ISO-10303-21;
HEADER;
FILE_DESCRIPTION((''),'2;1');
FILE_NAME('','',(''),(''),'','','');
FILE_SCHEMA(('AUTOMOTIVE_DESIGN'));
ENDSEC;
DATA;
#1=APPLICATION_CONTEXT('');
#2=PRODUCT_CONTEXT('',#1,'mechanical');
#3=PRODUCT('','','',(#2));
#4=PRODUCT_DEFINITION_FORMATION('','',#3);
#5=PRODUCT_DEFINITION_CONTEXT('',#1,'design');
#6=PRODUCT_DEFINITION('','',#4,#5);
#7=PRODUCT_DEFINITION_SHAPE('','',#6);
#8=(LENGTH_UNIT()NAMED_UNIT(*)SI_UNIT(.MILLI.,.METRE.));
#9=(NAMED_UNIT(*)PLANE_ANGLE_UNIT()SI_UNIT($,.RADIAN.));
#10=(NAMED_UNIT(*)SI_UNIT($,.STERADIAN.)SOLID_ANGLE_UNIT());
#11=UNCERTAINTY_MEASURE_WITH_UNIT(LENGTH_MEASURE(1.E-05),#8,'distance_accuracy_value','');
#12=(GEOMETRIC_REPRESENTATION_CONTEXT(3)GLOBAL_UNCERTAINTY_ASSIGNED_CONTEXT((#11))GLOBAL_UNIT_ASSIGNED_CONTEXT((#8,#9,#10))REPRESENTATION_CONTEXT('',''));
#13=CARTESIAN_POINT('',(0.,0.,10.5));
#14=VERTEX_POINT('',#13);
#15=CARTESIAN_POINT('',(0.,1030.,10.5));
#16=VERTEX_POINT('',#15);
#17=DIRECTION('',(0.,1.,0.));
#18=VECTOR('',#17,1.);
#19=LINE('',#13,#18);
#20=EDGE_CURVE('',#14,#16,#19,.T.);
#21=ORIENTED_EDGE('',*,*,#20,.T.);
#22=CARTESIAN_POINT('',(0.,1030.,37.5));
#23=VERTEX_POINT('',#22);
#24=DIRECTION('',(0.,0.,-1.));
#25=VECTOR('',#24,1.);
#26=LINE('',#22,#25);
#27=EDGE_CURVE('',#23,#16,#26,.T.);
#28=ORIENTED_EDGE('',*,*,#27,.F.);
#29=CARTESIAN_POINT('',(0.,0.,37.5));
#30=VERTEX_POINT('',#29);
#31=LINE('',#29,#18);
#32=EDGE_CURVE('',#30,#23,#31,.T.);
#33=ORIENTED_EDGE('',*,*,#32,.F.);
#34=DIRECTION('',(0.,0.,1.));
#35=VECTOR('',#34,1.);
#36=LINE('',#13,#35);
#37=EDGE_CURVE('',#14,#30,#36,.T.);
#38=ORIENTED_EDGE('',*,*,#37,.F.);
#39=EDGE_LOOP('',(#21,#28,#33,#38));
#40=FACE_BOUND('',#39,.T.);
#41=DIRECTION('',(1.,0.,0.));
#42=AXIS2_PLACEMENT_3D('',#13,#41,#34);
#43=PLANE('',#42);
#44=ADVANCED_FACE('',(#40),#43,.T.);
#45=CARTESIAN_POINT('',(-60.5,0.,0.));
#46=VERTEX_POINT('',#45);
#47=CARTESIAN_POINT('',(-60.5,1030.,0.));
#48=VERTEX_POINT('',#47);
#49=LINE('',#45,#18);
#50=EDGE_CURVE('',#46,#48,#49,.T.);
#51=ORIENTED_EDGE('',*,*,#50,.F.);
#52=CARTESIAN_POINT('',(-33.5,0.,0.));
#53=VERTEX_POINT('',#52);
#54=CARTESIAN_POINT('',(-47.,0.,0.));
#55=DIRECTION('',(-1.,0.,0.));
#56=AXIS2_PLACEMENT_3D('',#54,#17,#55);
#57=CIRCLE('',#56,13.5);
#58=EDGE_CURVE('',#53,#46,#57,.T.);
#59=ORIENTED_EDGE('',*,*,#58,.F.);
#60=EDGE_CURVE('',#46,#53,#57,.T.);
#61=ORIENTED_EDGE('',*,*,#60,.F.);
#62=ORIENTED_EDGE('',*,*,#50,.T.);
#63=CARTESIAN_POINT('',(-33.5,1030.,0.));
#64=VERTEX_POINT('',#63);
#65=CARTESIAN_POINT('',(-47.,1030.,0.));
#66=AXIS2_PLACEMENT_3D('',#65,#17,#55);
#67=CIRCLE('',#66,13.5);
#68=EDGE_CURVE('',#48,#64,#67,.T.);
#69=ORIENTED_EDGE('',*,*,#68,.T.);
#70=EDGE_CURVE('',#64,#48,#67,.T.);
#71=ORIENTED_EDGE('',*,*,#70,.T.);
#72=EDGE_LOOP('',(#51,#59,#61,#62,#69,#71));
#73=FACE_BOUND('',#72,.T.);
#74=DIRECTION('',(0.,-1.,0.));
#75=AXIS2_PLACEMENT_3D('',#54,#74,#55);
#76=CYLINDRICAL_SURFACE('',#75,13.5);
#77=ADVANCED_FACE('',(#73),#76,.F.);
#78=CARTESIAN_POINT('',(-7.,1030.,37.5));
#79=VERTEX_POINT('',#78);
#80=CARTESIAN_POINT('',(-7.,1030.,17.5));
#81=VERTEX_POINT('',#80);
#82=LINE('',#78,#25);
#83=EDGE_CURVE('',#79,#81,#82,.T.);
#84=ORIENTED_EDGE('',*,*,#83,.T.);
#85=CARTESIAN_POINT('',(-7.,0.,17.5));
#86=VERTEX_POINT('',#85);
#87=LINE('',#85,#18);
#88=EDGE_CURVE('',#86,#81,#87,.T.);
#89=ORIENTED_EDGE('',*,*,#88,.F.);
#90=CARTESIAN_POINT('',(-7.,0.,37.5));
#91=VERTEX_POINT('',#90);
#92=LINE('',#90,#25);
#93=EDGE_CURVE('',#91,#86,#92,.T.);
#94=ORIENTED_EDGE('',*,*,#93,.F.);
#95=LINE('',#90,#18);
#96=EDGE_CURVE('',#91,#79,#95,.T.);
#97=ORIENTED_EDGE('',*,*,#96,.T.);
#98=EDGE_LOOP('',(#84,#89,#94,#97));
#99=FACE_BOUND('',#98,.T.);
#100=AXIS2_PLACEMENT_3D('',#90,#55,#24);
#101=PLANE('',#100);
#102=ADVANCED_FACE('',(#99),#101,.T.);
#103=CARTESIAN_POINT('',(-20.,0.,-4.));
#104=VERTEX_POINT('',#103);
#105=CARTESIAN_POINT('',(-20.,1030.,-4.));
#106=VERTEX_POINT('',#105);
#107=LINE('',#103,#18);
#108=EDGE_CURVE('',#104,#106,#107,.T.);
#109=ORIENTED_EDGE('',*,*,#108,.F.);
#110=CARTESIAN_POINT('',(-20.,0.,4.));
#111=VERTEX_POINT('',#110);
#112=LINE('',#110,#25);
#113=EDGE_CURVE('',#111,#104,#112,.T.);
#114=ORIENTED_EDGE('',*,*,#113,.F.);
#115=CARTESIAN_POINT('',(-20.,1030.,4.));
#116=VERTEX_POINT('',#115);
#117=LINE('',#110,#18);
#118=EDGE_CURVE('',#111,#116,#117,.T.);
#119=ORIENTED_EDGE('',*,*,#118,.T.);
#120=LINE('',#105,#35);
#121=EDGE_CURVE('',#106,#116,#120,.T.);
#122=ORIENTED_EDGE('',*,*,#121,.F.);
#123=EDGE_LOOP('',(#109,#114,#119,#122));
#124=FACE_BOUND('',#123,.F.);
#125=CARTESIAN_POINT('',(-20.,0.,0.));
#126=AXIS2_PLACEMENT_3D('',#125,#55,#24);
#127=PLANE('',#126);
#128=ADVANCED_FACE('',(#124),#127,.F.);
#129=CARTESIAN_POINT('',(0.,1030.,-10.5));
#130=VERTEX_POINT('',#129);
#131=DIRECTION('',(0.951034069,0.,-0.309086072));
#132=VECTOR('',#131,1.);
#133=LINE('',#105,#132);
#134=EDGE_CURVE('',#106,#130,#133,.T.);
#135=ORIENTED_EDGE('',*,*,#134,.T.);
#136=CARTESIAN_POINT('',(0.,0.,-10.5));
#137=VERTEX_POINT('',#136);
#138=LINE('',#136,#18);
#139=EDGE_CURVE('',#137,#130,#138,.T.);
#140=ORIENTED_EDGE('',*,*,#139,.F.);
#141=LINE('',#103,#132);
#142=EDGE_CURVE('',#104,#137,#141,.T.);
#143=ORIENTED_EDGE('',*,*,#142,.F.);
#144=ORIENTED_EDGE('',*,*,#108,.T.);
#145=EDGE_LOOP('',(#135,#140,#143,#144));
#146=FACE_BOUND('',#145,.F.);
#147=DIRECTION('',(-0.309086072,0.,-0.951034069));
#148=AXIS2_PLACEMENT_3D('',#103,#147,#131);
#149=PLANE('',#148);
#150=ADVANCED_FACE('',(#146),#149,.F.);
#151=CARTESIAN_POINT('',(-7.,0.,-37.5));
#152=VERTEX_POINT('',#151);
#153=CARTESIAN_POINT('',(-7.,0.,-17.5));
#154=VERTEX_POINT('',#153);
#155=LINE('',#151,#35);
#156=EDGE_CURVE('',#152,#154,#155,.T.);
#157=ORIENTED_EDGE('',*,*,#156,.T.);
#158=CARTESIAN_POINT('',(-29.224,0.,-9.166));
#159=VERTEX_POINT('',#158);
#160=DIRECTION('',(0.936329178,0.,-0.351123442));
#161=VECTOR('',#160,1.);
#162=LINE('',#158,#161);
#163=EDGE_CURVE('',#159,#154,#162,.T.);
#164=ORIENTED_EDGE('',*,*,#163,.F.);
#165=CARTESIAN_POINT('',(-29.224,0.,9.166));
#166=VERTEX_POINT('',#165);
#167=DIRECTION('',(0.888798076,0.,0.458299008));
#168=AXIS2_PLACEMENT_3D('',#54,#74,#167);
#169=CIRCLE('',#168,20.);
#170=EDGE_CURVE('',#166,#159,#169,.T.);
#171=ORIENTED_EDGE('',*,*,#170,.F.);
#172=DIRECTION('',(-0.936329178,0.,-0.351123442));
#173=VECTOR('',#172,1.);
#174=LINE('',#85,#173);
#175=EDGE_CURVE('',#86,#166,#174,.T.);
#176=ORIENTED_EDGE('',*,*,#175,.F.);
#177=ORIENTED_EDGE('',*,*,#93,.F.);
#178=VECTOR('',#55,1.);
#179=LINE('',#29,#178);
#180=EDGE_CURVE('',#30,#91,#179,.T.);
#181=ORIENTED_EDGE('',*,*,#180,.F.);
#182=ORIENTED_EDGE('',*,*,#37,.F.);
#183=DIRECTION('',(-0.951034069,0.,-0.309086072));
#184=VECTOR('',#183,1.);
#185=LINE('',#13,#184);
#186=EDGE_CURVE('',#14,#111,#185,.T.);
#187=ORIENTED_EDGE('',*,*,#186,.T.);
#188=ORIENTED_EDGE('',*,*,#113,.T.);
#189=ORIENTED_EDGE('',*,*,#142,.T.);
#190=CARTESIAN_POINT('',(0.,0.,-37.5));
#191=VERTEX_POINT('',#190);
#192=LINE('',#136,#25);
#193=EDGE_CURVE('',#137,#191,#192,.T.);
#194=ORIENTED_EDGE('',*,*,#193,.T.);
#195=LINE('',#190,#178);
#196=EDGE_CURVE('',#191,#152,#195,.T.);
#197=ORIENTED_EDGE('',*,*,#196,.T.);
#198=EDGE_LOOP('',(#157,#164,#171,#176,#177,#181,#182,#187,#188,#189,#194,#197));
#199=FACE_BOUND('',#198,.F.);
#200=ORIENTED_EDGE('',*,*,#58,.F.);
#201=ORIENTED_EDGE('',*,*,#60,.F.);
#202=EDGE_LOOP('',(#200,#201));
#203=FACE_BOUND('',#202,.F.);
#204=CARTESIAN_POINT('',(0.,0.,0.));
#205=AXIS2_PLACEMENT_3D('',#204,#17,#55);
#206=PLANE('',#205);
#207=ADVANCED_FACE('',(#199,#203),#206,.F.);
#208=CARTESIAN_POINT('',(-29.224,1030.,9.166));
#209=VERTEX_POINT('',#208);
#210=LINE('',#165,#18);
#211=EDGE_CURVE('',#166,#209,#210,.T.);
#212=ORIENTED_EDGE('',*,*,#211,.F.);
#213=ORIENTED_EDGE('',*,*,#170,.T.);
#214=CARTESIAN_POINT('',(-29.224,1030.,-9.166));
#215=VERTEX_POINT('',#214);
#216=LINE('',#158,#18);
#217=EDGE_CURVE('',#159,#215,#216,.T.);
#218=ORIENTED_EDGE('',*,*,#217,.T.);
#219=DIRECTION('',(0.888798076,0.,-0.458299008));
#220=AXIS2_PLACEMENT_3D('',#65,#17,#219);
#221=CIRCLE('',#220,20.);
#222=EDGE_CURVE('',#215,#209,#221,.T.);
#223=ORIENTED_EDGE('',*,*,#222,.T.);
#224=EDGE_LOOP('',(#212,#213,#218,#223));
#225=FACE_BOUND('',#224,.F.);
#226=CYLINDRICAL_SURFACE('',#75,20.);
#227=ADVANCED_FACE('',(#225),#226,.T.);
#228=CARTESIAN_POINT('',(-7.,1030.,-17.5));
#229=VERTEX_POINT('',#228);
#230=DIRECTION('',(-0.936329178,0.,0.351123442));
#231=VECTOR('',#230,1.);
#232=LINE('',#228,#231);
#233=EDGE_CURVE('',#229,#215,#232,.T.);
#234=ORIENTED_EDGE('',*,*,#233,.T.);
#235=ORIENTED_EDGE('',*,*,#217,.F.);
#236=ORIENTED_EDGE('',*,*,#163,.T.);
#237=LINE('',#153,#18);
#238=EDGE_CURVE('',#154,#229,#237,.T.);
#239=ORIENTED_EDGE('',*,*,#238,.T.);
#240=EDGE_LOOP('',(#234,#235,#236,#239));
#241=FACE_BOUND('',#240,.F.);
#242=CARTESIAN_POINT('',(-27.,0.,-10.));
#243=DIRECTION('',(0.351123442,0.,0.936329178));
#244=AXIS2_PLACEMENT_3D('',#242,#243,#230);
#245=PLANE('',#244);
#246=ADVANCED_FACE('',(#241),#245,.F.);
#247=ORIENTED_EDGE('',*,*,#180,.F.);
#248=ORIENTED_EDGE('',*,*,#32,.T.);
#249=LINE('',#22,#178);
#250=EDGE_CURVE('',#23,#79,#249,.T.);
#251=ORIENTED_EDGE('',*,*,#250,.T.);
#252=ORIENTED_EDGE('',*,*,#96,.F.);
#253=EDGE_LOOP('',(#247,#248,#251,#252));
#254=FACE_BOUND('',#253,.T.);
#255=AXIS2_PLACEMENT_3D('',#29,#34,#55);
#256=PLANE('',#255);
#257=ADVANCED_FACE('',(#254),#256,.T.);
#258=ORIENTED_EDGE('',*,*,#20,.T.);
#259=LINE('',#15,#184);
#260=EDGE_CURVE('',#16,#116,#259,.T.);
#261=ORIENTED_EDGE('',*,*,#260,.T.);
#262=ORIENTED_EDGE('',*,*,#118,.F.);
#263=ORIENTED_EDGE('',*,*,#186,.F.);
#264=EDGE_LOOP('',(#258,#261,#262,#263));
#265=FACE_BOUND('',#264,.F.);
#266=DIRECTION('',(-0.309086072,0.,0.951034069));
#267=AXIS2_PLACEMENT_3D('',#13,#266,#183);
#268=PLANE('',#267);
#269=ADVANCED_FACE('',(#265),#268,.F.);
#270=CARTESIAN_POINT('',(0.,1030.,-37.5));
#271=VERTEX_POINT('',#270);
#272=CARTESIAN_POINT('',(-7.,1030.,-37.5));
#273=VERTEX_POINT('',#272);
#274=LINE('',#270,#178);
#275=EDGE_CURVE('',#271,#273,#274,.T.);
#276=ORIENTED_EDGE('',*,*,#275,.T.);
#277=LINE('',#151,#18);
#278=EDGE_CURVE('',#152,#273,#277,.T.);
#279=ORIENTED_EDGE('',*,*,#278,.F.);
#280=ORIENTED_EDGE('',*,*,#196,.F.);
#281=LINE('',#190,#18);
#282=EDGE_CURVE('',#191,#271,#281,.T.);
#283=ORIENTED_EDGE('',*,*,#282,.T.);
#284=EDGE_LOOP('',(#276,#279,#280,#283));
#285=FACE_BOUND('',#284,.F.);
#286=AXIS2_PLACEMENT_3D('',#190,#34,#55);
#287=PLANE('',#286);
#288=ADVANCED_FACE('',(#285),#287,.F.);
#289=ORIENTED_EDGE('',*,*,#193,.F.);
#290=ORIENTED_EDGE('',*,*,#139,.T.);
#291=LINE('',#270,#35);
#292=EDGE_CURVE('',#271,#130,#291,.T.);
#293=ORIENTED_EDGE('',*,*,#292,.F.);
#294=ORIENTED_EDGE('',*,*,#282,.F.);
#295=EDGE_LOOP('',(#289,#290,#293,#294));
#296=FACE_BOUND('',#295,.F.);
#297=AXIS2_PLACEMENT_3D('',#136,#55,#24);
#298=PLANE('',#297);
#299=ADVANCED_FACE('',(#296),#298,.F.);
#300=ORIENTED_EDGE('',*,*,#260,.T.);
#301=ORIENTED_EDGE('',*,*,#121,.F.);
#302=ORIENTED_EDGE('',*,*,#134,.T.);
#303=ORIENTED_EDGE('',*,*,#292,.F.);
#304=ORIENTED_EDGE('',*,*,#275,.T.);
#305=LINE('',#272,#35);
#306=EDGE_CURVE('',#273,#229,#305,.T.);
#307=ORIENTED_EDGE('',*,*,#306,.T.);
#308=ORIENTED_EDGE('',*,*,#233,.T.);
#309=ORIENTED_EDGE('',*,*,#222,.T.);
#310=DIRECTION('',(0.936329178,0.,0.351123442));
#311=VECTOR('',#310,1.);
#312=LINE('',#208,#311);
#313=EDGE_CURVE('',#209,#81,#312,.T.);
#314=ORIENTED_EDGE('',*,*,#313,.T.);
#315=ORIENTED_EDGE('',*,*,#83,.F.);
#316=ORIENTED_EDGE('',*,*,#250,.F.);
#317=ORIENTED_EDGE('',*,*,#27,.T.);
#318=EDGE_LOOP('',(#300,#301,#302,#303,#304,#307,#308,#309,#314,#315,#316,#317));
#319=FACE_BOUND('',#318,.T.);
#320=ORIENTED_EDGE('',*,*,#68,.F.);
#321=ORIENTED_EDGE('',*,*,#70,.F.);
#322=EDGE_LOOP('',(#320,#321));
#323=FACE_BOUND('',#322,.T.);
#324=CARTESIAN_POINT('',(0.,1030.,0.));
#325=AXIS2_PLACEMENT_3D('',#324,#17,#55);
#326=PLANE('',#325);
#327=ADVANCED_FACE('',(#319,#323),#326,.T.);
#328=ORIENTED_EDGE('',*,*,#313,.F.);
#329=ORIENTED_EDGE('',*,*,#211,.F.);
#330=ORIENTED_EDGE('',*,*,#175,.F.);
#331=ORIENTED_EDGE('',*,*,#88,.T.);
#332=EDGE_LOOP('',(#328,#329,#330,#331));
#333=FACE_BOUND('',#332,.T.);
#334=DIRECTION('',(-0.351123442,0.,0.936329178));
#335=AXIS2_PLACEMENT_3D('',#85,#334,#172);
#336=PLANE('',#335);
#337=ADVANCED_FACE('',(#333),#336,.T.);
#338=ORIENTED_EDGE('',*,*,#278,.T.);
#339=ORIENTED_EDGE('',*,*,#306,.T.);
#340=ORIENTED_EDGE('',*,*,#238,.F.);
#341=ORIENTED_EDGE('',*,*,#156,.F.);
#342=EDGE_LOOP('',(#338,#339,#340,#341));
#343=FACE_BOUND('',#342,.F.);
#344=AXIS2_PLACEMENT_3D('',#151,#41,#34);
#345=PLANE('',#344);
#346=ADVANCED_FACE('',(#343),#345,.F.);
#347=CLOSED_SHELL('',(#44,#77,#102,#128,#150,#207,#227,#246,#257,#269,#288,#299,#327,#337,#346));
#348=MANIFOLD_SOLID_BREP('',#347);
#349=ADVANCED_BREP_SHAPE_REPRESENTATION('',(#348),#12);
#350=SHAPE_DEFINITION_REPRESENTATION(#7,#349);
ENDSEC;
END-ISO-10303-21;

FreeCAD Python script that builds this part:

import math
import FreeCAD as App
import Part
import Sketcher
from FreeCAD import Vector

doc = App.newDocument("Part")
body = doc.addObject("PartDesign::Body", "Body")

sketch1 = body.newObject("Sketcher::SketchObject", "Sketch")
sketch1.AttachmentSupport = (doc.getObject("XZ_Plane"), [""])
sketch1.MapMode = "FlatFace"
sketch1.addGeometry(Part.LineSegment(Vector(-20, -4, 0), Vector(0, -10.5, 0)), False)
sketch1.addGeometry(Part.LineSegment(Vector(0, -10.5, 0), Vector(0, -37.5, 0)), False)
sketch1.addGeometry(Part.LineSegment(Vector(0, -37.5, 0), Vector(-7, -37.5, 0)), False)
sketch1.addGeometry(Part.LineSegment(Vector(-7, -37.5, 0), Vector(-7, -17.5, 0)), False)
sketch1.addGeometry(Part.LineSegment(Vector(-7, -17.5, 0), Vector(-29.224, -9.166, 0)), False)
sketch1.addGeometry(Part.ArcOfCircle(Part.Circle(Vector(-47, 0, 0), Vector(0, 0, 1), 20), math.radians(27.2774), math.radians(332.7226)), False)
sketch1.addGeometry(Part.LineSegment(Vector(-29.224, 9.166, 0), Vector(-7, 17.5, 0)), False)
sketch1.addGeometry(Part.LineSegment(Vector(-7, 17.5, 0), Vector(-7, 37.5, 0)), False)
sketch1.addGeometry(Part.LineSegment(Vector(-7, 37.5, 0), Vector(0, 37.5, 0)), False)
sketch1.addGeometry(Part.LineSegment(Vector(0, 37.5, 0), Vector(0, 10.5, 0)), False)
sketch1.addGeometry(Part.LineSegment(Vector(0, 10.5, 0), Vector(-20, 4, 0)), False)
sketch1.addGeometry(Part.LineSegment(Vector(-20, 4, 0), Vector(-20, -4, 0)), False)
sketch1.addGeometry(Part.Circle(Vector(-47, 0, 0), Vector(0, 0, 1), 13.5), False)
sketch1.addConstraint(Sketcher.Constraint("Coincident", 0, 2, 1, 1))
sketch1.addConstraint(Sketcher.Constraint("Coincident", 1, 2, 2, 1))
sketch1.addConstraint(Sketcher.Constraint("Coincident", 2, 2, 3, 1))
sketch1.addConstraint(Sketcher.Constraint("Coincident", 3, 2, 4, 1))
sketch1.addConstraint(Sketcher.Constraint("Coincident", 4, 2, 5, 2))
sketch1.addConstraint(Sketcher.Constraint("Coincident", 5, 1, 6, 1))
sketch1.addConstraint(Sketcher.Constraint("Coincident", 6, 2, 7, 1))
sketch1.addConstraint(Sketcher.Constraint("Coincident", 7, 2, 8, 1))
sketch1.addConstraint(Sketcher.Constraint("Coincident", 8, 2, 9, 1))
sketch1.addConstraint(Sketcher.Constraint("Coincident", 9, 2, 10, 1))
sketch1.addConstraint(Sketcher.Constraint("Coincident", 10, 2, 11, 1))
sketch1.addConstraint(Sketcher.Constraint("Coincident", 11, 2, 0, 1))
sketch1.addConstraint(Sketcher.Constraint("Vertical", 1))
sketch1.addConstraint(Sketcher.Constraint("Horizontal", 2))
sketch1.addConstraint(Sketcher.Constraint("Vertical", 3))
sketch1.addConstraint(Sketcher.Constraint("Vertical", 7))
sketch1.addConstraint(Sketcher.Constraint("Horizontal", 8))
sketch1.addConstraint(Sketcher.Constraint("Vertical", 9))
sketch1.addConstraint(Sketcher.Constraint("Vertical", 11))
sketch1.addConstraint(Sketcher.Constraint("Coincident", 12, 3, 5, 3))
sketch1.addConstraint(Sketcher.Constraint("Symmetric", 1, 2, 8, 2, -1, 1))
sketch1.addConstraint(Sketcher.Constraint("Symmetric", 4, 2, 5, 1, -1))
sketch1.addConstraint(Sketcher.Constraint("Symmetric", 3, 2, 6, 2, -1))
sketch1.addConstraint(Sketcher.Constraint("Symmetric", 0, 2, 9, 2, -1))
sketch1.addConstraint(Sketcher.Constraint("Equal", 0, 10))
sketch1.addConstraint(Sketcher.Constraint("Diameter", 12, 27.0))
sketch1.addConstraint(Sketcher.Constraint("Radius", 5, 20.0))
sketch1.addConstraint(Sketcher.Constraint("DistanceX", 2, 2, 2, 1, 7.0))
sketch1.addConstraint(Sketcher.Constraint("DistanceY", 1, 2, 1, 1, 27.0))
sketch1.addConstraint(Sketcher.Constraint("DistanceY", 3, 1, 3, 2, 20.0))
sketch1.addConstraint(Sketcher.Constraint("DistanceX", 10, 2, -1, 1, 20.0))
sketch1.addConstraint(Sketcher.Constraint("DistanceY", -1, 1, 10, 2, 4.0))
sketch1.addConstraint(Sketcher.Constraint("DistanceY", 1, 2, -1, 1, 37.5))
sketch1.addConstraint(Sketcher.Constraint("DistanceX", 5, 3, -1, 1, 47.0))
sketch1.addConstraint(Sketcher.Constraint("DistanceX", 4, 2, -1, 1, 29.224))
pad1 = body.newObject("PartDesign::Pad", "Pad")
pad1.Profile = sketch1
pad1.Length = 1030
pad1.Reversed = True

doc.recompute()
